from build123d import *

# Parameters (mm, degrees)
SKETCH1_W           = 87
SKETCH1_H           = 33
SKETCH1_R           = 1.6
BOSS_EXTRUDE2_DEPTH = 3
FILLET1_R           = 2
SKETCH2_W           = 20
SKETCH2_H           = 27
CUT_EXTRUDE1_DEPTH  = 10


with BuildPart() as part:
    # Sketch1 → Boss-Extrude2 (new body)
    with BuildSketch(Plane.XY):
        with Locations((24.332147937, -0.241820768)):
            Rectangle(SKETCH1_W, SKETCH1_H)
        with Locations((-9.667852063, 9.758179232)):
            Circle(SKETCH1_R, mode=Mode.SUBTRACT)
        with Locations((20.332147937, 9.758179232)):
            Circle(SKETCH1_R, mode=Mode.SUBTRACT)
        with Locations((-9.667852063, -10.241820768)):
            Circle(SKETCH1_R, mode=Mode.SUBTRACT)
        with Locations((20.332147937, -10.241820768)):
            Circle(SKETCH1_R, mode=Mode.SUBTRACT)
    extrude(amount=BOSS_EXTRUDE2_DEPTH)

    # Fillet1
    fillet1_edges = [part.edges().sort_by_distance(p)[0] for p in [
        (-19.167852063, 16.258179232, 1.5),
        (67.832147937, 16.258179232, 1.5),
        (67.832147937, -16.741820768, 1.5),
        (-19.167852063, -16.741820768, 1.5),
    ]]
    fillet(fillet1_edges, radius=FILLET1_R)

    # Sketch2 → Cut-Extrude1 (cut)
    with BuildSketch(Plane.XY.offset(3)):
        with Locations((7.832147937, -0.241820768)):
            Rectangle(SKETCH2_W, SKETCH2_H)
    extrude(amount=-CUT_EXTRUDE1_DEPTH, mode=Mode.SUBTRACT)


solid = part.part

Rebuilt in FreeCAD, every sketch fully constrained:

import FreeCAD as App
import Part
import Sketcher
from FreeCAD import Vector
Q = App.Units.Quantity


def edges_at(feature, points):
    """Names of the edges that pass closest to the given points."""
    edges = feature.Shape.Edges
    near = lambda p: min(range(len(edges)), key=lambda i: edges[i].distToShape(Part.Vertex(*p))[0])
    return sorted({f"Edge{near(p) + 1}" for p in points})

doc = App.newDocument("Part")
params = doc.addObject("Spreadsheet::Sheet", "Params")
for row, (alias, value) in enumerate([
    ("sketch1_diameter", "3.2 mm"),
    ("sketch1_width", "87 mm"),
    ("sketch1_height", "33 mm"),
    ("pad1_length", "3 mm"),
    ("fillet_radius", "2 mm"),
    ("sketch2_width", "20 mm"),
    ("sketch2_height", "27 mm"),
    ("pocket1_length", "10 mm"),
], start=1):
    params.set(f"A{row}", alias)
    params.set(f"B{row}", "=" + value)
    params.setAlias(f"B{row}", alias)

body = doc.addObject("PartDesign::Body", "Body")

# Sketch on XY plane
sketch1 = body.newObject("Sketcher::SketchObject", "Sketch")
sketch1.AttachmentSupport = (doc.getObject("XY_Plane"), [""])
sketch1.MapMode = "FlatFace"
sketch1.addGeometry([
    Part.LineSegment(Vector(-19.2, 16.3, 0), Vector(-19.2, -16.7, 0)),  # 0
    Part.LineSegment(Vector(-19.2, -16.7, 0), Vector(67.8, -16.7, 0)),  # 1
    Part.LineSegment(Vector(67.8, -16.7, 0), Vector(67.8, 16.3, 0)),  # 2
    Part.LineSegment(Vector(67.8, 16.3, 0), Vector(-19.2, 16.3, 0)),  # 3
    Part.Circle(Vector(-9.7, -10.2, 0), Vector(0, 0, 1), 1.6),  # 4
    Part.Circle(Vector(20.3, -10.2, 0), Vector(0, 0, 1), 1.6),  # 5
    Part.Circle(Vector(-9.7, 9.8, 0), Vector(0, 0, 1), 1.6),  # 6
    Part.Circle(Vector(20.3, 9.8, 0), Vector(0, 0, 1), 1.6),  # 7
], False)
sketch1.addConstraint([
    Sketcher.Constraint("Coincident", 0, 2, 1, 1),
    Sketcher.Constraint("Coincident", 1, 2, 2, 1),
    Sketcher.Constraint("Coincident", 2, 2, 3, 1),
    Sketcher.Constraint("Coincident", 3, 2, 0, 1),
    Sketcher.Constraint("Vertical", 0),
    Sketcher.Constraint("Horizontal", 1),
    Sketcher.Constraint("Vertical", 2),
    Sketcher.Constraint("Horizontal", 3),
    Sketcher.Constraint("Equal", 4, 5),
    Sketcher.Constraint("Equal", 5, 6),
    Sketcher.Constraint("Equal", 6, 7),
    Sketcher.Constraint("Horizontal", 4, 3, 5, 3),
    Sketcher.Constraint("Horizontal", 6, 3, 7, 3),
    Sketcher.Constraint("Vertical", 4, 3, 6, 3),
    Sketcher.Constraint("Vertical", 5, 3, 7, 3),
    Sketcher.Constraint("Diameter", 4, Q("3.2 mm")),
    Sketcher.Constraint("DistanceX", 1, 1, 1, 2, Q("87 mm")),
    Sketcher.Constraint("DistanceY", 0, 2, 0, 1, Q("33 mm")),
    Sketcher.Constraint("DistanceX", 4, 3, 5, 3, Q("30 mm")),
    Sketcher.Constraint("DistanceY", 4, 3, 6, 3, Q("20 mm")),
    Sketcher.Constraint("DistanceX", 0, 2, 4, 3, Q("9.5 mm")),
    Sketcher.Constraint("DistanceY", 0, 2, 4, 3, Q("6.5 mm")),
    Sketcher.Constraint("DistanceY", 4, 3, -1, 1, Q("10.241821 mm")),
    Sketcher.Constraint("DistanceX", 4, 3, -1, 1, Q("9.667852 mm")),
])
sketch1.setExpression("Constraints[15]", "Params.sketch1_diameter")
sketch1.setExpression("Constraints[16]", "Params.sketch1_width")
sketch1.setExpression("Constraints[17]", "Params.sketch1_height")
pad1 = body.newObject("PartDesign::Pad", "Pad")
pad1.Profile = sketch1
pad1.setExpression("Length", "Params.pad1_length")
doc.recompute()

fillet = body.newObject("PartDesign::Fillet", "Fillet")
fillet.Base = (pad1, edges_at(pad1, [
    (-19.168, 16.258, 1.5),
    (67.832, 16.258, 1.5),
    (67.832, -16.742, 1.5),
    (-19.168, -16.742, 1.5),
]))
fillet.setExpression("Radius", "Params.fillet_radius")

# Sketch on XY plane
sketch2 = body.newObject("Sketcher::SketchObject", "Sketch001")
sketch2.AttachmentSupport = (doc.getObject("XY_Plane"), [""])
sketch2.MapMode = "FlatFace"
sketch2.AttachmentOffset = App.Placement(Vector(0, 0, 3), App.Rotation())
sketch2.addGeometry([
    Part.LineSegment(Vector(-2, 13, 0), Vector(-2, -14, 0)),
    Part.LineSegment(Vector(-2, -14, 0), Vector(18, -14, 0)),
    Part.LineSegment(Vector(18, -14, 0), Vector(18, 13, 0)),
    Part.LineSegment(Vector(18, 13, 0), Vector(-2, 13, 0)),
], False)
sketch2.addConstraint([
    Sketcher.Constraint("Coincident", 0, 2, 1, 1),
    Sketcher.Constraint("Coincident", 1, 2, 2, 1),
    Sketcher.Constraint("Coincident", 2, 2, 3, 1),
    Sketcher.Constraint("Coincident", 3, 2, 0, 1),
    Sketcher.Constraint("Vertical", 0),
    Sketcher.Constraint("Horizontal", 1),
    Sketcher.Constraint("Vertical", 2),
    Sketcher.Constraint("Horizontal", 3),
    Sketcher.Constraint("DistanceX", 1, 1, 1, 2, Q("20 mm")),
    Sketcher.Constraint("DistanceY", 0, 2, 0, 1, Q("27 mm")),
    Sketcher.Constraint("DistanceY", 0, 2, -1, 1, Q("13.741821 mm")),
    Sketcher.Constraint("DistanceX", 0, 2, -1, 1, Q("2.167852 mm")),
])
sketch2.setExpression("Constraints[8]", "Params.sketch2_width")
sketch2.setExpression("Constraints[9]", "Params.sketch2_height")
pocket1 = body.newObject("PartDesign::Pocket", "Pocket")
pocket1.Profile = sketch2
pocket1.setExpression("Length", "Params.pocket1_length")

doc.recompute()
